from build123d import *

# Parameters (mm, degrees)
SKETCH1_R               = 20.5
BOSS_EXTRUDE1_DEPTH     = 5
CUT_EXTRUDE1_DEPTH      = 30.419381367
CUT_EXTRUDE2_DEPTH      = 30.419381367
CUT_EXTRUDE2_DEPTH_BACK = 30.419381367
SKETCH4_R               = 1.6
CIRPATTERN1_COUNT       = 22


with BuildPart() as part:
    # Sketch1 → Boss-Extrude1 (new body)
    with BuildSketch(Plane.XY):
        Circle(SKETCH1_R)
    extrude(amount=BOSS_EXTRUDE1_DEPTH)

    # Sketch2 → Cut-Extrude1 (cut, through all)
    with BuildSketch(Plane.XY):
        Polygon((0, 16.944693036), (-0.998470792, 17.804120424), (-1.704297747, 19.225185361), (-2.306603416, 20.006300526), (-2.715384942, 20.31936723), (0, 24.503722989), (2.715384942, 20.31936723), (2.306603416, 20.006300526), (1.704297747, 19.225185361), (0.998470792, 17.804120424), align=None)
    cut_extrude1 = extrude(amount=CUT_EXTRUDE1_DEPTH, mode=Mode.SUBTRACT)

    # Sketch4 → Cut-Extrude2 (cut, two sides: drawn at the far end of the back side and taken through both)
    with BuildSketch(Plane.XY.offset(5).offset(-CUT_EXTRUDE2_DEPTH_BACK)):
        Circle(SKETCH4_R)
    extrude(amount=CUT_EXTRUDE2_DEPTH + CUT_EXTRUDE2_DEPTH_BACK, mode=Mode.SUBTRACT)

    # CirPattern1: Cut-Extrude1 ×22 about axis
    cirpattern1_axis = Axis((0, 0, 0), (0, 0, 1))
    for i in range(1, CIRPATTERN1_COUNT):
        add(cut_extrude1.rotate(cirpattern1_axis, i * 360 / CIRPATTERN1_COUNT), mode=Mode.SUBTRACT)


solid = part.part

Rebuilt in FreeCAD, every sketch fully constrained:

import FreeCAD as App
import Part
import Sketcher

V = App.Vector
Q = App.Units.Quantity

doc = App.newDocument("Part")
body = doc.addObject("PartDesign::Body", "Body")

# Sketch on XY plane
sketch1 = body.newObject("Sketcher::SketchObject", "Sketch")
sketch1.AttachmentSupport = (doc.getObject("XY_Plane"), [""])
sketch1.MapMode = "FlatFace"
sketch1.addGeometry(Part.Circle(V(0, 0, 0), V(0, 0, 1), 20), False)
sketch1.addConstraint([
    Sketcher.Constraint("Coincident", 0, 3, -1, 1),
    Sketcher.Constraint("Diameter", 0, 41.0),
])
pad1 = body.newObject("PartDesign::Pad", "Pad")
pad1.Profile = sketch1
pad1.Length = 5

# Sketch on XY plane
sketch2 = body.newObject("Sketcher::SketchObject", "Sketch001")
sketch2.AttachmentSupport = (doc.getObject("XY_Plane"), [""])
sketch2.MapMode = "FlatFace"
sketch2.addGeometry([
    Part.LineSegment(V(-1, 17.8, 0), V(0, 16.9, 0)),  # 0
    Part.LineSegment(V(0, 16.9, 0), V(1, 17.8, 0)),  # 1
    Part.LineSegment(V(1, 17.8, 0), V(1.7, 19.2, 0)),  # 2
    Part.LineSegment(V(1.7, 19.2, 0), V(2.3, 20, 0)),  # 3
    Part.LineSegment(V(2.3, 20, 0), V(2.7, 20.3, 0)),  # 4
    Part.LineSegment(V(2.7, 20.3, 0), V(0, 24.5, 0)),  # 5
    Part.LineSegment(V(0, 24.5, 0), V(-2.7, 20.3, 0)),  # 6
    Part.LineSegment(V(-2.7, 20.3, 0), V(-2.3, 20, 0)),  # 7
    Part.LineSegment(V(-2.3, 20, 0), V(-1.7, 19.2, 0)),  # 8
    Part.LineSegment(V(-1.7, 19.2, 0), V(-1, 17.8, 0)),  # 9
], False)
sketch2.addConstraint([
    Sketcher.Constraint("Coincident", 0, 2, 1, 1),
    Sketcher.Constraint("Coincident", 1, 2, 2, 1),
    Sketcher.Constraint("Coincident", 2, 2, 3, 1),
    Sketcher.Constraint("Coincident", 3, 2, 4, 1),
    Sketcher.Constraint("Coincident", 4, 2, 5, 1),
    Sketcher.Constraint("Coincident", 5, 2, 6, 1),
    Sketcher.Constraint("Coincident", 6, 2, 7, 1),
    Sketcher.Constraint("Coincident", 7, 2, 8, 1),
    Sketcher.Constraint("Coincident", 8, 2, 9, 1),
    Sketcher.Constraint("Coincident", 9, 2, 0, 1),
    Sketcher.Constraint("Symmetric", 4, 2, 6, 2, -2),
    Sketcher.Constraint("Symmetric", 3, 2, 7, 2, -2),
    Sketcher.Constraint("Symmetric", 2, 2, 8, 2, -2),
    Sketcher.Constraint("Symmetric", 1, 2, 9, 2, -2),
    Sketcher.Constraint("PointOnObject", 0, 2, -2),
    Sketcher.Constraint("PointOnObject", 5, 2, -2),
    Sketcher.Constraint("Angle", 0, Q("-40.720015 deg")),
    Sketcher.Constraint("Distance", 2, 1.5867),
    Sketcher.Constraint("Distance", 5, 4.988201),
    Sketcher.Constraint("DistanceY", -1, 1, 3, 2, 20.006301),
    Sketcher.Constraint("DistanceX", 7, 2, 2, 2, 4.010901),
    Sketcher.Constraint("Distance", 4, 0.514891),
    Sketcher.Constraint("DistanceX", -1, 1, 1, 2, 0.998471),
    Sketcher.Constraint("DistanceY", -1, 1, 1, 2, 17.80412),
    Sketcher.Constraint("DistanceX", 3, 2, 4, 2, 0.408782),
    Sketcher.Constraint("DistanceY", 2, 2, 4, 2, 1.094182),
])
pocket1 = body.newObject("PartDesign::Pocket", "Pocket")
pocket1.Profile = sketch2
pocket1.Type = "ThroughAll"
pocket1.Reversed = True

# Sketch on XY plane
sketch3 = body.newObject("Sketcher::SketchObject", "Sketch002")
sketch3.AttachmentSupport = (doc.getObject("XY_Plane"), [""])
sketch3.MapMode = "FlatFace"
sketch3.AttachmentOffset = App.Placement(V(0, 0, 5), App.Rotation())
sketch3.addGeometry(Part.Circle(V(0, 0, 0), V(0, 0, 1), 1.6), False)
sketch3.addConstraint([
    Sketcher.Constraint("Coincident", 0, 3, -1, 1),
    Sketcher.Constraint("Diameter", 0, 3.2),
])
pocket2 = body.newObject("PartDesign::Pocket", "Pocket001")
pocket2.Profile = sketch3
pocket2.Type = "ThroughAll"
pocket2.Midplane = True
doc.recompute()

polarpattern = body.newObject("PartDesign::PolarPattern", "PolarPattern")
polarpattern.Originals = [pocket1]
polarpattern.Axis = (doc.getObject("Z_Axis"), [""])
polarpattern.Angle = 360
polarpattern.Occurrences = 22
body.Tip = polarpattern

doc.recompute()
